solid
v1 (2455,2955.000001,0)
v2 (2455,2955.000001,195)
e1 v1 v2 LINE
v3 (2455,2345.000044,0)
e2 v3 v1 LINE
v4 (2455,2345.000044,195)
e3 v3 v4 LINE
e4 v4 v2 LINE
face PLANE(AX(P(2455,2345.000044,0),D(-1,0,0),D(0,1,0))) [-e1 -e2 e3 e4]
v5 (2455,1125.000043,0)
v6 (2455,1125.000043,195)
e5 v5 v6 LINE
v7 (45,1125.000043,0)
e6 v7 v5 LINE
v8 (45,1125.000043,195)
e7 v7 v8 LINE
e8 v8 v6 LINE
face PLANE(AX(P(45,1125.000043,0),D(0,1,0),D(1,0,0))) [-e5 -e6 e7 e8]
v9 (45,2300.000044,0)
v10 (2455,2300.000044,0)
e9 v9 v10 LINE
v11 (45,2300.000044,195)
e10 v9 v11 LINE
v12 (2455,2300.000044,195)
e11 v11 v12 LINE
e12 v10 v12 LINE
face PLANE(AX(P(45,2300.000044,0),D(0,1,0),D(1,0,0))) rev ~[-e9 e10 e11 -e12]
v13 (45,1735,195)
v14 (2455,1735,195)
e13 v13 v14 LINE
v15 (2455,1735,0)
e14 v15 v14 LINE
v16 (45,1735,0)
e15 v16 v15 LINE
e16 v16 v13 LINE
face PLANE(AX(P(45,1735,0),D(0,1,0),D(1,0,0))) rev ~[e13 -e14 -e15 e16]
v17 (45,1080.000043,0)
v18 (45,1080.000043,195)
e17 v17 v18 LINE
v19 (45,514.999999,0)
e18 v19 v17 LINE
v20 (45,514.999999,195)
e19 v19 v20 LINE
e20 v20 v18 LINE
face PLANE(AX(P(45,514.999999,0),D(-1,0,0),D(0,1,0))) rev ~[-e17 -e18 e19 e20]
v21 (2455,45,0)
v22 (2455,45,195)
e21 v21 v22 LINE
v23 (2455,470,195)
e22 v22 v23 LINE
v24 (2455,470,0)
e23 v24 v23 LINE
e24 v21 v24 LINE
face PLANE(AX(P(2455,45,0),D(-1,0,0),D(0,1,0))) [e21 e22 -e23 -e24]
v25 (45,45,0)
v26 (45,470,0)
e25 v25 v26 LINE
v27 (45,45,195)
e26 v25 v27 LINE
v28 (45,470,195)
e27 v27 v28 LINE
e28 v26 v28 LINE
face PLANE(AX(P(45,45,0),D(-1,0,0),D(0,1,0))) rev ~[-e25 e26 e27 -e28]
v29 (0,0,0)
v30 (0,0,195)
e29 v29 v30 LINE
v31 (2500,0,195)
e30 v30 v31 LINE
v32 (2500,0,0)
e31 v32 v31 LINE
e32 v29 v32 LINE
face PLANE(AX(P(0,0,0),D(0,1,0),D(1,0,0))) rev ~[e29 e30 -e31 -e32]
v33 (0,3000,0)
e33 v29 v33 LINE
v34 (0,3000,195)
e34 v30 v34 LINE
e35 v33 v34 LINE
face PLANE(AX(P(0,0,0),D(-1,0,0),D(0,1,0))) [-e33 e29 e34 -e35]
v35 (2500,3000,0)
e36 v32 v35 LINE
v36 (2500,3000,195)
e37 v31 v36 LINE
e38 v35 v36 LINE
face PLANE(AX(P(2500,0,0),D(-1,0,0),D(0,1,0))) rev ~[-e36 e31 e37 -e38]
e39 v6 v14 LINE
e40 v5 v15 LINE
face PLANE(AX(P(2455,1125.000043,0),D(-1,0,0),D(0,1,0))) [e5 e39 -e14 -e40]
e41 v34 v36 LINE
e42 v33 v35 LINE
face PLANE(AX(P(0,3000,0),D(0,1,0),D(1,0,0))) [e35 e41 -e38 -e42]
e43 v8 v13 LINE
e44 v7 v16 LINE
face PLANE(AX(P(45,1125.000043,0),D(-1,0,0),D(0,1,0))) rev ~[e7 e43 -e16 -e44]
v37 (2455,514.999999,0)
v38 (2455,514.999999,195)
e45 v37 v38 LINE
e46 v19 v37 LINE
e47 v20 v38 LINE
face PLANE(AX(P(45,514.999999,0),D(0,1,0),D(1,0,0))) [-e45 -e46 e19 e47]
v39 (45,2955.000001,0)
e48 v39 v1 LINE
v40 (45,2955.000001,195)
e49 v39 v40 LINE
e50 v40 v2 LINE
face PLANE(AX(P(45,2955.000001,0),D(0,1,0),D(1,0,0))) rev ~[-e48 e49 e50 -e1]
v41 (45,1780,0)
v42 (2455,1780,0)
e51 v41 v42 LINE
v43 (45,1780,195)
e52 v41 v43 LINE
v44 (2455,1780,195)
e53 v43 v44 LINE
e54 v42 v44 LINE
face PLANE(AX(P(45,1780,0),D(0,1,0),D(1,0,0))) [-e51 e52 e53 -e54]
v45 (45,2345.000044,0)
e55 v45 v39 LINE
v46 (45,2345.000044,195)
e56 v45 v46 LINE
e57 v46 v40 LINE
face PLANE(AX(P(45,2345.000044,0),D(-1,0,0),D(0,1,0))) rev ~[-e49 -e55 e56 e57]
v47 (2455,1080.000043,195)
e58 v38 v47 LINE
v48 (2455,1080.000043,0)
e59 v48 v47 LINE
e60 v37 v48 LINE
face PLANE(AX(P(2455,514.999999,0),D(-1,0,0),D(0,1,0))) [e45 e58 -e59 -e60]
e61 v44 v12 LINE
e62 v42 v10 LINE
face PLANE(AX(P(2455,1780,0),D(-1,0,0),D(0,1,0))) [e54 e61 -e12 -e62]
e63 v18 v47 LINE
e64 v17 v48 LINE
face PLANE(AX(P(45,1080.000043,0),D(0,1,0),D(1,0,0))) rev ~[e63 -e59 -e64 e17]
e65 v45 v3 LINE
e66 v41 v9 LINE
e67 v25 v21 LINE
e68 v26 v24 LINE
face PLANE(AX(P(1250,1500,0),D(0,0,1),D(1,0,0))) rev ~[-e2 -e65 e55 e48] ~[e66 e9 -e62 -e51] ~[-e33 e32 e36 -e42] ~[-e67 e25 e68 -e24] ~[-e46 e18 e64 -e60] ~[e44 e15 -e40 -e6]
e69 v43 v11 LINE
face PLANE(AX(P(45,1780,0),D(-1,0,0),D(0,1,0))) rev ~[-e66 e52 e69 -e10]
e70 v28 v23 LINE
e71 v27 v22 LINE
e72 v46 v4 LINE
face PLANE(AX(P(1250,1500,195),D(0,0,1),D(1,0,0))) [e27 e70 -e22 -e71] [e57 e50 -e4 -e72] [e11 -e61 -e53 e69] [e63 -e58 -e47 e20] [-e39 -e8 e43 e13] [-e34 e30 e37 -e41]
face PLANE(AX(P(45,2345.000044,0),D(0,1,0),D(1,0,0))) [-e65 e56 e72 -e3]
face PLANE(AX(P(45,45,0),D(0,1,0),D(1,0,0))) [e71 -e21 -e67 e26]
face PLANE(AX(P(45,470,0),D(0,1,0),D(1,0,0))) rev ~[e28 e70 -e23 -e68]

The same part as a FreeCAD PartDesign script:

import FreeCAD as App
import Part
import Sketcher
Q = App.Units.Quantity


def add_polygon(sketch, points):
    """Adds a closed chain of lines whose ends are joined by coincident constraints."""
    first, n = sketch.GeometryCount, len(points)
    for a, b in zip(points, points[1:] + points[:1]):
        sketch.addGeometry(Part.LineSegment(App.Vector(*a, 0), App.Vector(*b, 0)), False)
    for i in range(n):
        sketch.addConstraint(Sketcher.Constraint("Coincident", first + i, 2, first + (i + 1) % n, 1))

doc = App.newDocument("Part")
body = doc.addObject("PartDesign::Body", "Body")

sketch1 = doc.addObject("Sketcher::SketchObject", "Sketch")
body.addObject(sketch1)
sketch1.AttachmentSupport = (doc.XY_Plane, [""])
sketch1.MapMode = "FlatFace"
add_polygon(sketch1, [(0, 3000), (0, 0), (2500, 0), (2500, 3000)])
add_polygon(sketch1, [(2455, 45), (45, 45), (45, 470), (2455, 470)])
add_polygon(sketch1, [(2455, 514.999999), (45, 514.999999), (45, 1080.000043), (2455, 1080.000043)])
add_polygon(sketch1, [(2455, 1125.000043), (45, 1125.000043), (45, 1735), (2455, 1735)])
add_polygon(sketch1, [(2455, 1780), (45, 1780), (45, 2300.000044), (2455, 2300.000044)])
add_polygon(sketch1, [(2455, 2345.000044), (45, 2345.000044), (45, 2955.000001), (2455, 2955.000001)])
sketch1.addConstraint(Sketcher.Constraint("Vertical", 0))
sketch1.addConstraint(Sketcher.Constraint("Horizontal", 1))
sketch1.addConstraint(Sketcher.Constraint("Vertical", 2))
sketch1.addConstraint(Sketcher.Constraint("Horizontal", 3))
sketch1.addConstraint(Sketcher.Constraint("Horizontal", 4))
sketch1.addConstraint(Sketcher.Constraint("Vertical", 5))
sketch1.addConstraint(Sketcher.Constraint("Horizontal", 6))
sketch1.addConstraint(Sketcher.Constraint("Vertical", 7))
sketch1.addConstraint(Sketcher.Constraint("Horizontal", 8))
sketch1.addConstraint(Sketcher.Constraint("Vertical", 9))
sketch1.addConstraint(Sketcher.Constraint("Horizontal", 10))
sketch1.addConstraint(Sketcher.Constraint("Vertical", 11))
sketch1.addConstraint(Sketcher.Constraint("Horizontal", 12))
sketch1.addConstraint(Sketcher.Constraint("Vertical", 13))
sketch1.addConstraint(Sketcher.Constraint("Horizontal", 14))
sketch1.addConstraint(Sketcher.Constraint("Vertical", 15))
sketch1.addConstraint(Sketcher.Constraint("Horizontal", 16))
sketch1.addConstraint(Sketcher.Constraint("Vertical", 17))
sketch1.addConstraint(Sketcher.Constraint("Horizontal", 18))
sketch1.addConstraint(Sketcher.Constraint("Vertical", 19))
sketch1.addConstraint(Sketcher.Constraint("Horizontal", 20))
sketch1.addConstraint(Sketcher.Constraint("Vertical", 21))
sketch1.addConstraint(Sketcher.Constraint("Horizontal", 22))
sketch1.addConstraint(Sketcher.Constraint("Vertical", 23))
sketch1.addConstraint(Sketcher.Constraint("Coincident", 0, 2, -1, 1))
sketch1.addConstraint(Sketcher.Constraint("Vertical", 5, 2, 8, 2))
sketch1.addConstraint(Sketcher.Constraint("Vertical", 7, 2, 10, 2))
sketch1.addConstraint(Sketcher.Constraint("Vertical", 9, 2, 12, 2))
sketch1.addConstraint(Sketcher.Constraint("Vertical", 11, 2, 14, 2))
sketch1.addConstraint(Sketcher.Constraint("Vertical", 13, 2, 16, 2))
sketch1.addConstraint(Sketcher.Constraint("Vertical", 15, 2, 18, 2))
sketch1.addConstraint(Sketcher.Constraint("Vertical", 17, 2, 20, 2))
sketch1.addConstraint(Sketcher.Constraint("Vertical", 19, 2, 22, 2))
sketch1.addConstraint(Sketcher.Constraint("Equal", 15, 21))
sketch1.addConstraint(Sketcher.Constraint("DistanceX", 1, 1, 1, 2, Q("2500 mm")))
sketch1.addConstraint(Sketcher.Constraint("DistanceX", 4, 2, 4, 1, Q("2410 mm")))
sketch1.addConstraint(Sketcher.Constraint("DistanceY", 0, 2, 0, 1, Q("3000 mm")))
sketch1.addConstraint(Sketcher.Constraint("DistanceY", 5, 1, 5, 2, Q("424.999999 mm")))
sketch1.addConstraint(Sketcher.Constraint("DistanceX", -1, 1, 4, 2, Q("45 mm")))
sketch1.addConstraint(Sketcher.Constraint("DistanceY", -1, 1, 4, 2, Q("45 mm")))
sketch1.addConstraint(Sketcher.Constraint("DistanceY", -1, 1, 8, 2, Q("514.999999 mm")))
sketch1.addConstraint(Sketcher.Constraint("DistanceY", -1, 1, 13, 2, Q("1735 mm")))
sketch1.addConstraint(Sketcher.Constraint("DistanceY", -1, 1, 16, 2, Q("1780 mm")))
sketch1.addConstraint(Sketcher.Constraint("DistanceY", -1, 1, 21, 2, Q("2955.000001 mm")))
sketch1.addConstraint(Sketcher.Constraint("DistanceY", 9, 2, 12, 2, Q("45 mm")))
sketch1.addConstraint(Sketcher.Constraint("DistanceY", 12, 2, 17, 2, Q("1175 mm")))
sketch1.addConstraint(Sketcher.Constraint("DistanceY", 9, 1, 9, 2, Q("565.000044 mm")))
pad1 = doc.addObject("PartDesign::Pad", "Pad")
body.addObject(pad1)
pad1.Profile = sketch1
pad1.Length = 195

doc.recompute()
